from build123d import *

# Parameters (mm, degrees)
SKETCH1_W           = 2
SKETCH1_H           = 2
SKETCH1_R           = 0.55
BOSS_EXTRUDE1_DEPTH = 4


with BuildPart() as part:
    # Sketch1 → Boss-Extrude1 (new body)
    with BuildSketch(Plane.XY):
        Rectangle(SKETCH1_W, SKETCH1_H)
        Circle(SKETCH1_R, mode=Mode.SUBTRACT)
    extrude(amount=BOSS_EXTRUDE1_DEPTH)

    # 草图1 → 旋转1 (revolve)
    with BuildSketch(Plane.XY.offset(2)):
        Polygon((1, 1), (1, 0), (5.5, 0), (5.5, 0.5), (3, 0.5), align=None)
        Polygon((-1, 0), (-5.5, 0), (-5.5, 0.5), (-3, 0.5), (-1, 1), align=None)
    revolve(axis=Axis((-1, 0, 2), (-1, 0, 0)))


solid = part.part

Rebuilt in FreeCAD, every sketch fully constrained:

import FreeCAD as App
import Part
import Sketcher

V = App.Vector
Q = App.Units.Quantity

doc = App.newDocument("Part")
params = doc.addObject("Spreadsheet::Sheet", "Params")
for row, (alias, value) in enumerate([
    ("sketch1_diameter", "1.1 mm"),
    ("sketch1_width", "2 mm"),
    ("pad1_length", "4 mm"),
    ("sketch2_height", "1 mm"),
    ("sketch2_width", "4.5 mm"),
    ("sketch2_width2", "2.5 mm"),
    ("sketch2_height2", "0.5 mm"),
    ("revolution_angle", "360 deg"),
], start=1):
    params.set(f"A{row}", alias)
    params.set(f"B{row}", "=" + value)
    params.setAlias(f"B{row}", alias)

body = doc.addObject("PartDesign::Body", "Body")

# Sketch on XY plane
sketch1 = doc.addObject("Sketcher::SketchObject", "Sketch")
body.addObject(sketch1)
sketch1.AttachmentSupport = (doc.XY_Plane, [""])
sketch1.MapMode = "FlatFace"
sketch1.addGeometry(Part.LineSegment(V(-1, 1, 0), V(-1, -1, 0)), False)
sketch1.addGeometry(Part.LineSegment(V(-1, -1, 0), V(1, -1, 0)), False)
sketch1.addGeometry(Part.LineSegment(V(1, -1, 0), V(1, 1, 0)), False)
sketch1.addGeometry(Part.LineSegment(V(1, 1, 0), V(-1, 1, 0)), False)
sketch1.addGeometry(Part.Circle(V(0, 0, 0), V(0, 0, 1), 0.6), False)
sketch1.addConstraint(Sketcher.Constraint("Coincident", 0, 2, 1, 1))
sketch1.addConstraint(Sketcher.Constraint("Coincident", 1, 2, 2, 1))
sketch1.addConstraint(Sketcher.Constraint("Coincident", 2, 2, 3, 1))
sketch1.addConstraint(Sketcher.Constraint("Coincident", 3, 2, 0, 1))
sketch1.addConstraint(Sketcher.Constraint("Vertical", 0))
sketch1.addConstraint(Sketcher.Constraint("Horizontal", 1))
sketch1.addConstraint(Sketcher.Constraint("Vertical", 2))
sketch1.addConstraint(Sketcher.Constraint("Horizontal", 3))
sketch1.addConstraint(Sketcher.Constraint("Coincident", 4, 3, -1, 1))
sketch1.addConstraint(Sketcher.Constraint("Symmetric", 0, 2, 2, 2, -1, 1))
sketch1.addConstraint(Sketcher.Constraint("Equal", 3, 0))
sketch1.addConstraint(Sketcher.Constraint("Diameter", 4, Q("1.1 mm")))
sketch1.addConstraint(Sketcher.Constraint("DistanceX", 1, 1, 1, 2, Q("2 mm")))
sketch1.setExpression("Constraints[11]", "Params.sketch1_diameter")
sketch1.setExpression("Constraints[12]", "Params.sketch1_width")
pad1 = doc.addObject("PartDesign::Pad", "Pad")
body.addObject(pad1)
pad1.Profile = sketch1
pad1.setExpression("Length", "Params.pad1_length")

# Sketch on XY plane
sketch2 = doc.addObject("Sketcher::SketchObject", "Sketch001")
body.addObject(sketch2)
sketch2.AttachmentSupport = (doc.XY_Plane, [""])
sketch2.MapMode = "FlatFace"
sketch2.AttachmentOffset = App.Placement(V(0, 0, 2), App.Rotation())
sketch2.addGeometry(Part.LineSegment(V(1, 1, 0), V(1, 0, 0)), False)
sketch2.addGeometry(Part.LineSegment(V(1, 0, 0), V(5.5, 0, 0)), False)
sketch2.addGeometry(Part.LineSegment(V(5.5, 0, 0), V(5.5, 0.5, 0)), False)
sketch2.addGeometry(Part.LineSegment(V(5.5, 0.5, 0), V(3, 0.5, 0)), False)
sketch2.addGeometry(Part.LineSegment(V(3, 0.5, 0), V(1, 1, 0)), False)
sketch2.addGeometry(Part.LineSegment(V(-5.5, 0, 0), V(-1, 0, 0)), False)
sketch2.addGeometry(Part.LineSegment(V(-1, 0, 0), V(-1, 1, 0)), False)
sketch2.addGeometry(Part.LineSegment(V(-1, 1, 0), V(-3, 0.5, 0)), False)
sketch2.addGeometry(Part.LineSegment(V(-3, 0.5, 0), V(-5.5, 0.5, 0)), False)
sketch2.addGeometry(Part.LineSegment(V(-5.5, 0.5, 0), V(-5.5, 0, 0)), False)
sketch2.addConstraint(Sketcher.Constraint("Coincident", 0, 2, 1, 1))
sketch2.addConstraint(Sketcher.Constraint("Coincident", 1, 2, 2, 1))
sketch2.addConstraint(Sketcher.Constraint("Coincident", 2, 2, 3, 1))
sketch2.addConstraint(Sketcher.Constraint("Coincident", 3, 2, 4, 1))
sketch2.addConstraint(Sketcher.Constraint("Coincident", 4, 2, 0, 1))
sketch2.addConstraint(Sketcher.Constraint("Coincident", 5, 2, 6, 1))
sketch2.addConstraint(Sketcher.Constraint("Coincident", 6, 2, 7, 1))
sketch2.addConstraint(Sketcher.Constraint("Coincident", 7, 2, 8, 1))
sketch2.addConstraint(Sketcher.Constraint("Coincident", 8, 2, 9, 1))
sketch2.addConstraint(Sketcher.Constraint("Coincident", 9, 2, 5, 1))
sketch2.addConstraint(Sketcher.Constraint("Vertical", 0))
sketch2.addConstraint(Sketcher.Constraint("Horizontal", 1))
sketch2.addConstraint(Sketcher.Constraint("Vertical", 2))
sketch2.addConstraint(Sketcher.Constraint("Horizontal", 3))
sketch2.addConstraint(Sketcher.Constraint("Horizontal", 5))
sketch2.addConstraint(Sketcher.Constraint("Vertical", 6))
sketch2.addConstraint(Sketcher.Constraint("Horizontal", 8))
sketch2.addConstraint(Sketcher.Constraint("Vertical", 9))
sketch2.addConstraint(Sketcher.Constraint("Symmetric", 0, 2, 5, 2, -1, 1))
sketch2.addConstraint(Sketcher.Constraint("Symmetric", 3, 2, 7, 2, -2))
sketch2.addConstraint(Sketcher.Constraint("Symmetric", 1, 2, 9, 2, -2))
sketch2.addConstraint(Sketcher.Constraint("Horizontal", 4, 2, 6, 2))
sketch2.addConstraint(Sketcher.Constraint("DistanceY", 0, 2, 0, 1, Q("1 mm")))
sketch2.addConstraint(Sketcher.Constraint("DistanceX", 1, 1, 1, 2, Q("4.5 mm")))
sketch2.addConstraint(Sketcher.Constraint("DistanceX", 3, 2, 3, 1, Q("2.5 mm")))
sketch2.addConstraint(Sketcher.Constraint("DistanceY", 2, 1, 2, 2, Q("0.5 mm")))
sketch2.addConstraint(Sketcher.Constraint("DistanceX", -1, 1, 0, 2, Q("1 mm")))
sketch2.setExpression("Constraints[22]", "Params.sketch2_height")
sketch2.setExpression("Constraints[23]", "Params.sketch2_width")
sketch2.setExpression("Constraints[24]", "Params.sketch2_width2")
sketch2.setExpression("Constraints[25]", "Params.sketch2_height2")
revolution = doc.addObject("PartDesign::Revolution", "Revolution")
body.addObject(revolution)
revolution.Profile = sketch2
revolution.ReferenceAxis = (sketch2, ["H_Axis"])
revolution.setExpression("Angle", "Params.revolution_angle")

doc.recompute()
